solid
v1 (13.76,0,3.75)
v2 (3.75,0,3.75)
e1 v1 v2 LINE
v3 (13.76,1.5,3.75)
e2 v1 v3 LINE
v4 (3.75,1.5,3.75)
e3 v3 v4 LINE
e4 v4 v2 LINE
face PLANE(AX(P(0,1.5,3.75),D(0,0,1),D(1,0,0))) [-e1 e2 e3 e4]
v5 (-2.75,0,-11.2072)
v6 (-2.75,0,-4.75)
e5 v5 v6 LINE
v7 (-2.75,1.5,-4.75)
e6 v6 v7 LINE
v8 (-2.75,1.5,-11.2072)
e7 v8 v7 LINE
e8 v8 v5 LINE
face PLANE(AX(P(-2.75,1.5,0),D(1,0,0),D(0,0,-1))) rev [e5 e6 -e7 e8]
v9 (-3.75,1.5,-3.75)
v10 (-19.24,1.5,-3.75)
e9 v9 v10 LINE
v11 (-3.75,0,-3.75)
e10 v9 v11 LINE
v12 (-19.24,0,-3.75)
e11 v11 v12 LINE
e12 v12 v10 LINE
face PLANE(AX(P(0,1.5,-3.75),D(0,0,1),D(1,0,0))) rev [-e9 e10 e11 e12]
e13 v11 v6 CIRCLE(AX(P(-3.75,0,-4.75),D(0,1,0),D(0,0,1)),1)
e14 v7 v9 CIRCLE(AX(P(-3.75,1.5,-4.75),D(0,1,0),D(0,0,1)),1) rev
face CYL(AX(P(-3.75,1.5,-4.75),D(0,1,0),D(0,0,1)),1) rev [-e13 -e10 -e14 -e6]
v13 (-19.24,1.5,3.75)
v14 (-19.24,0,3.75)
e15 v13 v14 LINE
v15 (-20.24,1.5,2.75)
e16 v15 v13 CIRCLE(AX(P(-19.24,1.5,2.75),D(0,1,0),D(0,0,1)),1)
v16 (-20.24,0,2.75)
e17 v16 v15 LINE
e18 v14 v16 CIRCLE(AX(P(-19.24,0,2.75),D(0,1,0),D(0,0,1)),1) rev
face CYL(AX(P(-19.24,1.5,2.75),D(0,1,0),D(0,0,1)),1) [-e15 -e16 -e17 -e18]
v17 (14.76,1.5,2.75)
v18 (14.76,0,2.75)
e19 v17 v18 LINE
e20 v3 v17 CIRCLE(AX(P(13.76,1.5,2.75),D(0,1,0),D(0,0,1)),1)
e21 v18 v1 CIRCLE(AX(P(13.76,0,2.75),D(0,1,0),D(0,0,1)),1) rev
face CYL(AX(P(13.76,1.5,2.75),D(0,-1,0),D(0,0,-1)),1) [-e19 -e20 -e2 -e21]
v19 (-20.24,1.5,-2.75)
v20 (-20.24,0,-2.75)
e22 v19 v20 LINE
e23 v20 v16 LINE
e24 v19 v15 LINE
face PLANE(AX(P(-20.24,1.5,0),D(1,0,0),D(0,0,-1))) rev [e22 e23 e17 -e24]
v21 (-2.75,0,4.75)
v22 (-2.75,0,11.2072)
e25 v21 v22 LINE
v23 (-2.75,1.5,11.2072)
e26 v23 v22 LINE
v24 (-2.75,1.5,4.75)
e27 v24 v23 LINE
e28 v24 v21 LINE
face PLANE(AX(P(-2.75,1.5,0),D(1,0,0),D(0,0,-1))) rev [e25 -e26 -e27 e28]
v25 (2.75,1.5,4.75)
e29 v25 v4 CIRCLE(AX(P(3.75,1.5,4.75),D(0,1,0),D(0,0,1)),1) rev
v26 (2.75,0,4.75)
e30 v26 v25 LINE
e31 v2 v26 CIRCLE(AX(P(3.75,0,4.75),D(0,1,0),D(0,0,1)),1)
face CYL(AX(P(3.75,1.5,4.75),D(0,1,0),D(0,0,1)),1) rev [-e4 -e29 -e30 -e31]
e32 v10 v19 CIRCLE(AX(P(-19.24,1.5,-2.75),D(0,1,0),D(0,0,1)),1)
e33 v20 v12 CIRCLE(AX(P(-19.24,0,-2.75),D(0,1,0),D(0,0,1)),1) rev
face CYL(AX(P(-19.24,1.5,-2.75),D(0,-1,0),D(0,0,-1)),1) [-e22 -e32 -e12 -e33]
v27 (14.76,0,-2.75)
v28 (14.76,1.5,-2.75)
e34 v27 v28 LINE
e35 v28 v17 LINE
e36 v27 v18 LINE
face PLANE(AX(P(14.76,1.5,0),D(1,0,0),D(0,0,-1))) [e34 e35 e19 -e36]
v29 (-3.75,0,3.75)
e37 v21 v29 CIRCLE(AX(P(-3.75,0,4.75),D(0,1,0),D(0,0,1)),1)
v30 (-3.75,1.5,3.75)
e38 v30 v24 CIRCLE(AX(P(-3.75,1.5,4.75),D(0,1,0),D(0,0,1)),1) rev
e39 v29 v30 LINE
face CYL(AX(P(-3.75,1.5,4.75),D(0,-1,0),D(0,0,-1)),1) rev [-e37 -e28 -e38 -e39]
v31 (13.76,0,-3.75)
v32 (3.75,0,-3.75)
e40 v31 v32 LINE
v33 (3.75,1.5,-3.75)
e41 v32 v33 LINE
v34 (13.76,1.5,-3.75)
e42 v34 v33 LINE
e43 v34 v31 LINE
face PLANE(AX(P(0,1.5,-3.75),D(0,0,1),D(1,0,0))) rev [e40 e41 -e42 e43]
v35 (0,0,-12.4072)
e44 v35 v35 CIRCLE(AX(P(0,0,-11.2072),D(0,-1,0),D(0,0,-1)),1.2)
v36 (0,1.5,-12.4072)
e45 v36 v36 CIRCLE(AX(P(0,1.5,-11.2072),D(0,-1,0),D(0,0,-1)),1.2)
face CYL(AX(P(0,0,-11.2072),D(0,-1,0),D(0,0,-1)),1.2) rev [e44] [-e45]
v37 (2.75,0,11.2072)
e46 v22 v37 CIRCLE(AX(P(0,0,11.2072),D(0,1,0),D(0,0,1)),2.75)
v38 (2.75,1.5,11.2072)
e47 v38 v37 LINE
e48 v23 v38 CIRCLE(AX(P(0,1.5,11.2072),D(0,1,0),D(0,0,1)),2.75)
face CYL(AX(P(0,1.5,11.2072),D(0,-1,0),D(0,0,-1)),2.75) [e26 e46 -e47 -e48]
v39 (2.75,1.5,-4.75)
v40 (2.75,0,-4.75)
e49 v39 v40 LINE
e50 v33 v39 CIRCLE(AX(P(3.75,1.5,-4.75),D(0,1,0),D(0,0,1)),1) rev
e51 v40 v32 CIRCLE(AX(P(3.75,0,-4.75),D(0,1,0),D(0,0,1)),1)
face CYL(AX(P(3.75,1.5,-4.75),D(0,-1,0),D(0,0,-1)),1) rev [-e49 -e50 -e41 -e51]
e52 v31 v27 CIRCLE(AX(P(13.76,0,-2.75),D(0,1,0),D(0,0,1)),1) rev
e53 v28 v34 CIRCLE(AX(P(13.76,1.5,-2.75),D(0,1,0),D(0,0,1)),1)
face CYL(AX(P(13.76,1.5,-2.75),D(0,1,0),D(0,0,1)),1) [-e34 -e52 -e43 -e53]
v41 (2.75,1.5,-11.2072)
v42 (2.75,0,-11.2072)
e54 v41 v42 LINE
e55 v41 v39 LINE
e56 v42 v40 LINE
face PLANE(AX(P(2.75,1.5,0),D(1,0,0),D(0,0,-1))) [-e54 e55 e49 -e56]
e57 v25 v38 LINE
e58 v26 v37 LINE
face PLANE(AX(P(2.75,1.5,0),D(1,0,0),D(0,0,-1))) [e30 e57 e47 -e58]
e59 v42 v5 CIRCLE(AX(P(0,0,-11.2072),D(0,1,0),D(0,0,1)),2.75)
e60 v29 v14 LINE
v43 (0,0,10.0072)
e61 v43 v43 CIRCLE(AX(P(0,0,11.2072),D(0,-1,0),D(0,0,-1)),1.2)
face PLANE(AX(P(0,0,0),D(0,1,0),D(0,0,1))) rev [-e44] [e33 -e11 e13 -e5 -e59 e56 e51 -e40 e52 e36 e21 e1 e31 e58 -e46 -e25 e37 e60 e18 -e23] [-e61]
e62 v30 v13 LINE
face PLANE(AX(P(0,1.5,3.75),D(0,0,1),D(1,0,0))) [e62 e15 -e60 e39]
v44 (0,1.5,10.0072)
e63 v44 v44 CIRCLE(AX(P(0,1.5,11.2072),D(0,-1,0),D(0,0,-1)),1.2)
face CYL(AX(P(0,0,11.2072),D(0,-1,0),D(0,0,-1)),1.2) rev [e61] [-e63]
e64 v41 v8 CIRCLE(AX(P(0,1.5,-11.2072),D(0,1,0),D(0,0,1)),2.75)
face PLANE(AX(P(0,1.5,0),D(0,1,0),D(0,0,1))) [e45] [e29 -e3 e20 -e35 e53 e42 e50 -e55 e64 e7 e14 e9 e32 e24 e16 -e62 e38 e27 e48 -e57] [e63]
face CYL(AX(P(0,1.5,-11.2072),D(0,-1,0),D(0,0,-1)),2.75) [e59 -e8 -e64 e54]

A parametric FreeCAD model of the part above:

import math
import FreeCAD as App
import Part
import Sketcher

V = App.Vector


def edges_at(feature, points):
    """Names of the edges that pass closest to the given points."""
    edges = feature.Shape.Edges
    near = lambda p: min(range(len(edges)), key=lambda i: edges[i].distToShape(Part.Vertex(*p))[0])
    return sorted({f"Edge{near(p) + 1}" for p in points})

doc = App.newDocument("Part")
body = doc.addObject("PartDesign::Body", "Body")

# Sketch on XZ plane
sketch1 = doc.addObject("Sketcher::SketchObject", "Sketch")
body.addObject(sketch1)
sketch1.AttachmentSupport = (doc.XZ_Plane, [""])
sketch1.MapMode = "FlatFace"
sketch1.addGeometry(Part.LineSegment(V(-2.8, -3.8, 0), V(-20.2, -3.8, 0)), False)
sketch1.addGeometry(Part.LineSegment(V(-20.2, -3.8, 0), V(-20.2, 3.8, 0)), False)
sketch1.addGeometry(Part.LineSegment(V(-20.2, 3.8, 0), V(-2.8, 3.8, 0)), False)
sketch1.addGeometry(Part.LineSegment(V(-2.8, 3.8, 0), V(-2.8, 11.2, 0)), False)
sketch1.addGeometry(Part.ArcOfCircle(Part.Circle(V(0, 11.2, 0), V(0, 0, 1), 2.8), math.radians(0), math.radians(180)), False)
sketch1.addGeometry(Part.LineSegment(V(2.8, 11.2, 0), V(2.8, 3.8, 0)), False)
sketch1.addGeometry(Part.LineSegment(V(2.8, 3.8, 0), V(14.8, 3.8, 0)), False)
sketch1.addGeometry(Part.LineSegment(V(14.8, 3.8, 0), V(14.8, -3.8, 0)), False)
sketch1.addGeometry(Part.LineSegment(V(14.8, -3.8, 0), V(2.8, -3.8, 0)), False)
sketch1.addGeometry(Part.LineSegment(V(2.8, -3.8, 0), V(2.8, -11.2, 0)), False)
sketch1.addGeometry(Part.ArcOfCircle(Part.Circle(V(0, -11.2, 0), V(0, 0, 1), 2.8), math.radians(180), math.radians(360)), False)
sketch1.addGeometry(Part.LineSegment(V(-2.8, -11.2, 0), V(-2.8, -3.8, 0)), False)
sketch1.addConstraint(Sketcher.Constraint("Coincident", 0, 2, 1, 1))
sketch1.addConstraint(Sketcher.Constraint("Coincident", 1, 2, 2, 1))
sketch1.addConstraint(Sketcher.Constraint("Coincident", 2, 2, 3, 1))
sketch1.addConstraint(Sketcher.Constraint("Tangent", 3, 2, 4, 2))
sketch1.addConstraint(Sketcher.Constraint("Tangent", 4, 1, 5, 1))
sketch1.addConstraint(Sketcher.Constraint("Coincident", 5, 2, 6, 1))
sketch1.addConstraint(Sketcher.Constraint("Coincident", 6, 2, 7, 1))
sketch1.addConstraint(Sketcher.Constraint("Coincident", 7, 2, 8, 1))
sketch1.addConstraint(Sketcher.Constraint("Coincident", 8, 2, 9, 1))
sketch1.addConstraint(Sketcher.Constraint("Tangent", 9, 2, 10, 2))
sketch1.addConstraint(Sketcher.Constraint("Tangent", 10, 1, 11, 1))
sketch1.addConstraint(Sketcher.Constraint("Coincident", 11, 2, 0, 1))
sketch1.addConstraint(Sketcher.Constraint("Horizontal", 0))
sketch1.addConstraint(Sketcher.Constraint("Vertical", 1))
sketch1.addConstraint(Sketcher.Constraint("Horizontal", 2))
sketch1.addConstraint(Sketcher.Constraint("Vertical", 3))
sketch1.addConstraint(Sketcher.Constraint("Vertical", 5))
sketch1.addConstraint(Sketcher.Constraint("Horizontal", 6))
sketch1.addConstraint(Sketcher.Constraint("Vertical", 7))
sketch1.addConstraint(Sketcher.Constraint("Horizontal", 8))
sketch1.addConstraint(Sketcher.Constraint("Vertical", 9))
sketch1.addConstraint(Sketcher.Constraint("Vertical", 11))
sketch1.addConstraint(Sketcher.Constraint("Equal", 4, 10))
sketch1.addConstraint(Sketcher.Constraint("Symmetric", 4, 3, 10, 3, -1, 1))
sketch1.addConstraint(Sketcher.Constraint("Symmetric", 2, 2, 5, 2, -2))
sketch1.addConstraint(Sketcher.Constraint("Horizontal", 0, 2, 7, 2))
sketch1.addConstraint(Sketcher.Constraint("Equal", 5, 9))
sketch1.addConstraint(Sketcher.Constraint("Radius", 4, 2.75))
sketch1.addConstraint(Sketcher.Constraint("DistanceY", 1, 1, 1, 2, 7.5))
sketch1.addConstraint(Sketcher.Constraint("DistanceX", 0, 2, 0, 1, 17.49))
sketch1.addConstraint(Sketcher.Constraint("DistanceX", 6, 1, 6, 2, 12.01))
sketch1.addConstraint(Sketcher.Constraint("DistanceY", 3, 1, 3, 2, 7.4572))
pad1 = doc.addObject("PartDesign::Pad", "Pad")
body.addObject(pad1)
pad1.Profile = sketch1
pad1.Length = 1.5
pad1.Reversed = True

# Sketch on XZ plane
sketch2 = doc.addObject("Sketcher::SketchObject", "Sketch001")
body.addObject(sketch2)
sketch2.AttachmentSupport = (doc.XZ_Plane, [""])
sketch2.MapMode = "FlatFace"
sketch2.addGeometry(Part.Circle(V(0, -11.2, 0), V(0, 0, 1), 1.2), False)
sketch2.addGeometry(Part.Circle(V(0, 11.2, 0), V(0, 0, 1), 1.2), False)
sketch2.addConstraint(Sketcher.Constraint("Equal", 0, 1))
sketch2.addConstraint(Sketcher.Constraint("Symmetric", 0, 3, 1, 3, -1, 1))
sketch2.addConstraint(Sketcher.Constraint("PointOnObject", 0, 3, -2))
sketch2.addConstraint(Sketcher.Constraint("Diameter", 0, 2.4))
sketch2.addConstraint(Sketcher.Constraint("DistanceY", 0, 3, -1, 1, 11.2072))
doc.recompute()
hole = doc.addObject("PartDesign::Hole", "Hole")
body.addObject(hole)
hole.Profile = sketch2
hole.ThreadType = "None"
hole.Diameter = 2.4
hole.DepthType = "ThroughAll"
doc.recompute()

fillet = doc.addObject("PartDesign::Fillet", "Fillet")
body.addObject(fillet)
fillet.Base = (hole, edges_at(hole, [
    (2.75, 0.75, -3.75),
    (14.76, 0.75, -3.75),
    (14.76, 0.75, 3.75),
    (2.75, 0.75, 3.75),
    (-2.75, 0.75, 3.75),
    (-20.24, 0.75, 3.75),
    (-20.24, 0.75, -3.75),
    (-2.75, 0.75, -3.75),
]))
fillet.Radius = 1

doc.recompute()
